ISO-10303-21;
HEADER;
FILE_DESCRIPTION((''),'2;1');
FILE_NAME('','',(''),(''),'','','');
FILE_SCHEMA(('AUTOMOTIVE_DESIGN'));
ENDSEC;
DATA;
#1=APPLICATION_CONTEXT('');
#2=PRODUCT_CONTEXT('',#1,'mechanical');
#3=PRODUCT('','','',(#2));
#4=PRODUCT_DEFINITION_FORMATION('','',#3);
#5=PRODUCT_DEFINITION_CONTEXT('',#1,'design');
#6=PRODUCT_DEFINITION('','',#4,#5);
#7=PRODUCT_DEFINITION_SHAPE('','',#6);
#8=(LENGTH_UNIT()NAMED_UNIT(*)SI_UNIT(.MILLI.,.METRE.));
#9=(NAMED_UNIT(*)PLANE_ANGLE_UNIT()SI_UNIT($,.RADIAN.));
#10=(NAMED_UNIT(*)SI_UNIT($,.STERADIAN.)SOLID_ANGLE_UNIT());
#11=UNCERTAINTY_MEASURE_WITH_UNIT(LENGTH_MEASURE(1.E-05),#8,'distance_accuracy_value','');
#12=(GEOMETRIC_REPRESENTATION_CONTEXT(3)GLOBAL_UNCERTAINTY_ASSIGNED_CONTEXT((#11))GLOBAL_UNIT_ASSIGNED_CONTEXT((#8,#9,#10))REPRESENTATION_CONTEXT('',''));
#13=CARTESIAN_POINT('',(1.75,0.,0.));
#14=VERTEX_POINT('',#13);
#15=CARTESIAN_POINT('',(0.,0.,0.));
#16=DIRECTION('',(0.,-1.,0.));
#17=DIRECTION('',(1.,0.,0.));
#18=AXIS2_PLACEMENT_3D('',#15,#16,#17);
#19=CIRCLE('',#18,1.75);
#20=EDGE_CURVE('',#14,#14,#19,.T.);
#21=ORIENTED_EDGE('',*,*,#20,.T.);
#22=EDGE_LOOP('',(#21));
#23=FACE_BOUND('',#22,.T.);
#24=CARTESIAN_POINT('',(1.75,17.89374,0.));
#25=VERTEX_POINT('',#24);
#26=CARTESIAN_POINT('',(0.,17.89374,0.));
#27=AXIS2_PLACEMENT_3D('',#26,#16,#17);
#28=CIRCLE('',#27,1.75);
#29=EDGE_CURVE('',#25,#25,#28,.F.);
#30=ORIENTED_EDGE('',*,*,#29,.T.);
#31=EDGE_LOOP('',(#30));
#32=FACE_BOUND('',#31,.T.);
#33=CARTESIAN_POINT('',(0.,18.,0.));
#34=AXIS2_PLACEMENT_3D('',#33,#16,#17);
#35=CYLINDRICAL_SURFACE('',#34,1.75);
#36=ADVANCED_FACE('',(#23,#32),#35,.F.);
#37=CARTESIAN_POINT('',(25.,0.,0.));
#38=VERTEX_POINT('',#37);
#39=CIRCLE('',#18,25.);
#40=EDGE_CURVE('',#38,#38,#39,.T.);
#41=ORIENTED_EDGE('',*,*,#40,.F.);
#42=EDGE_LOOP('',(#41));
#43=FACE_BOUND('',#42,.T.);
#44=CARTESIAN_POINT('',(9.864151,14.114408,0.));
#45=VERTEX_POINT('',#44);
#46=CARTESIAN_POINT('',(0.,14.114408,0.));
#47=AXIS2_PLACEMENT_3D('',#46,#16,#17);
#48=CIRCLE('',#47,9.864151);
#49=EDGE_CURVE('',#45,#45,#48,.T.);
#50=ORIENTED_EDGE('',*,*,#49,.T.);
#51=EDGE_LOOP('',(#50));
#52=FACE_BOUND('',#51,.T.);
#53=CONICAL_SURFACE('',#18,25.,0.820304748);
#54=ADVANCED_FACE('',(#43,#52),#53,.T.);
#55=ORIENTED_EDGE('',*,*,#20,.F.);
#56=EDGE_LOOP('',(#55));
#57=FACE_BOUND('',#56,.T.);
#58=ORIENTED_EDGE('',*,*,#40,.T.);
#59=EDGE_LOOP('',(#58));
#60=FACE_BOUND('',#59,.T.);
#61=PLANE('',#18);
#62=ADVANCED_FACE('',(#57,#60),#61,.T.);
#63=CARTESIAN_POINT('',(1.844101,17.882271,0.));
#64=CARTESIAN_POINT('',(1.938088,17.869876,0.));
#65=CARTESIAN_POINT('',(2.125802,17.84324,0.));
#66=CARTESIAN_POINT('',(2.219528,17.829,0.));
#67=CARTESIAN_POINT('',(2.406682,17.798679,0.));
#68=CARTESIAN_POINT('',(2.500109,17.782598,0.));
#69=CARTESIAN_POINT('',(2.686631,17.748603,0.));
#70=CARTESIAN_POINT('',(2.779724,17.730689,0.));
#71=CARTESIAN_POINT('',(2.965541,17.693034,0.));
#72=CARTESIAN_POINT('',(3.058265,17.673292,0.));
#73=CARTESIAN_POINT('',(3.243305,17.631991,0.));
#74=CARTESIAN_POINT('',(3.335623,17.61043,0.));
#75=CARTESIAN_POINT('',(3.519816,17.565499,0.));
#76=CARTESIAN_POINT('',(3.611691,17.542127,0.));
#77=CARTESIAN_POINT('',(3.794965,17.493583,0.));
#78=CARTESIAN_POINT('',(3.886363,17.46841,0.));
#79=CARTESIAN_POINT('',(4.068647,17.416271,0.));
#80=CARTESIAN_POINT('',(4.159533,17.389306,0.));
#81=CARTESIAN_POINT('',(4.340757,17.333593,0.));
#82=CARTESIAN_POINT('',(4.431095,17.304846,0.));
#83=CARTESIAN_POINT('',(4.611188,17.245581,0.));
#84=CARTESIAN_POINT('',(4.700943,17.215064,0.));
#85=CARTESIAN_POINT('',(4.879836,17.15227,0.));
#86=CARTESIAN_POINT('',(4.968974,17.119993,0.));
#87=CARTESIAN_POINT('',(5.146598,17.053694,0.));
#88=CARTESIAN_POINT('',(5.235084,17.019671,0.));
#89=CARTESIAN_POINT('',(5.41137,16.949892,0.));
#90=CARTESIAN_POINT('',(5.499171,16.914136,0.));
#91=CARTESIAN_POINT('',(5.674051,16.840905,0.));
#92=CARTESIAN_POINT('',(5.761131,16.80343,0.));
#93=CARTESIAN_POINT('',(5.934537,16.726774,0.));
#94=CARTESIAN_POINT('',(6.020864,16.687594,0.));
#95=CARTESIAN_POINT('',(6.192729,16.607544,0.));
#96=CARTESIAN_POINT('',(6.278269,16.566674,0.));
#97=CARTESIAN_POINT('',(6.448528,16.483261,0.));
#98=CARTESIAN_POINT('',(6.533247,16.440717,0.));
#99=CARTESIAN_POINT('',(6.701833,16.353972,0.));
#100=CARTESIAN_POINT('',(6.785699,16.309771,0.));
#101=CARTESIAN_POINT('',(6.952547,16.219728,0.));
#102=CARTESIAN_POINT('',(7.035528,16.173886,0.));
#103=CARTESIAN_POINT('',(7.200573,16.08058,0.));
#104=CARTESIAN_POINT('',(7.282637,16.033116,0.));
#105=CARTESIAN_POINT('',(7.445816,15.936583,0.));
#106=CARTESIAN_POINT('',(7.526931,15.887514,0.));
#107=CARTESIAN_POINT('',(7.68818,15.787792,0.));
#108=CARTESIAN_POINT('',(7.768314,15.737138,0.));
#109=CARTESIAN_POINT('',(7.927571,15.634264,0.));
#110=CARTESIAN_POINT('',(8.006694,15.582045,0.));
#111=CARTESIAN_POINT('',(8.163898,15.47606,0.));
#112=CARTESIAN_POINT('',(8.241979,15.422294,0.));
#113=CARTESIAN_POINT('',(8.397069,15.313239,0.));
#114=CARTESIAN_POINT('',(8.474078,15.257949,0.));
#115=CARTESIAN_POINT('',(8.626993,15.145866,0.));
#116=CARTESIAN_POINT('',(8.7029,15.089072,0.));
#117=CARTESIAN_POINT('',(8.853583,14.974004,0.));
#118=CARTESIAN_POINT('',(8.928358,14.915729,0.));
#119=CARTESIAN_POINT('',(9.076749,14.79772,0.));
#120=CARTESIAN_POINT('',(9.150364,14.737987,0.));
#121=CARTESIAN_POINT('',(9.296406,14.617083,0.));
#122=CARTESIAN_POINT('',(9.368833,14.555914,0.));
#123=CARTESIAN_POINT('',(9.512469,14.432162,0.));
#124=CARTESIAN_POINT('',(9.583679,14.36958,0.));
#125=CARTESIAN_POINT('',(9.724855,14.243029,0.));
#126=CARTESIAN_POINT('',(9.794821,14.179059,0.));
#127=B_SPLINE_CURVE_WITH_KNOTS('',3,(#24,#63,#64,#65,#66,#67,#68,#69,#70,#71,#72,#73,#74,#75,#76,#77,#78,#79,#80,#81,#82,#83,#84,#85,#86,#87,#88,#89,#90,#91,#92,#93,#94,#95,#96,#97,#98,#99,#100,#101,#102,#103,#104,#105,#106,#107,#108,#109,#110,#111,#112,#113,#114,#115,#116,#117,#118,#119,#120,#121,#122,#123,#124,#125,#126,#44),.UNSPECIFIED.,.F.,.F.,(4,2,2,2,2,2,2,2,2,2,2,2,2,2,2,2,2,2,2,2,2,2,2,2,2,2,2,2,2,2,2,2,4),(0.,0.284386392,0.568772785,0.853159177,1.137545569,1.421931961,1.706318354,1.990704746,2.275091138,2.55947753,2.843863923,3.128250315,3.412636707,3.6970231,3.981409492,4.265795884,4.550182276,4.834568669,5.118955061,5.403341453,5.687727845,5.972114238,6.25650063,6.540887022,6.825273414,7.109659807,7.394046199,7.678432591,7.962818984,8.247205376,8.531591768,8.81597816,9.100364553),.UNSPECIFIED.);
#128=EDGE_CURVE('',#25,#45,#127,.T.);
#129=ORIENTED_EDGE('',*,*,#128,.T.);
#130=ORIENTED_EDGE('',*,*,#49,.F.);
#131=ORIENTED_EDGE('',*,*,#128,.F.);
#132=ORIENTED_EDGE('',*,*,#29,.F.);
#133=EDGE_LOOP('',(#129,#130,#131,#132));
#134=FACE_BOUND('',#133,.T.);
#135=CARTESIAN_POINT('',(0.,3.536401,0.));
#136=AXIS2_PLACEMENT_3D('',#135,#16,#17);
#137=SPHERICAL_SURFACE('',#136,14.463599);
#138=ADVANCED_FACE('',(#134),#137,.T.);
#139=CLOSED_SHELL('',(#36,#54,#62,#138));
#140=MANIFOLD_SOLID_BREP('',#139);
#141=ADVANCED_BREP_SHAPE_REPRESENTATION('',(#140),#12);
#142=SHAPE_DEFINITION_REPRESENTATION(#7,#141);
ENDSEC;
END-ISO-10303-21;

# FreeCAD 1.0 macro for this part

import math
import FreeCAD as App
import Part
import Sketcher

V = App.Vector
Q = App.Units.Quantity

doc = App.newDocument("Part")
body = doc.addObject("PartDesign::Body", "Body")

# Sketch on XY plane
sketch1 = body.newObject("Sketcher::SketchObject", "Sketch")
sketch1.AttachmentSupport = (doc.getObject("XY_Plane"), [""])
sketch1.MapMode = "FlatFace"
sketch1.addGeometry(Part.LineSegment(V(0, 0, 0), V(25, 0, 0)), False)
sketch1.addGeometry(Part.LineSegment(V(25, 0, 0), V(9.864151, 14.114408, 0)), False)
sketch1.addGeometry(Part.ArcOfCircle(Part.Circle(V(0, 3.536401, 0), V(0, 0, 1), 14.463599), math.radians(47), math.radians(90)), False)
sketch1.addGeometry(Part.LineSegment(V(0, 18, 0), V(0, 0, 0)), False)
sketch1.addConstraint(Sketcher.Constraint("Coincident", 0, 2, 1, 1))
sketch1.addConstraint(Sketcher.Constraint("Tangent", 1, 2, 2, 1))
sketch1.addConstraint(Sketcher.Constraint("Coincident", 2, 2, 3, 1))
sketch1.addConstraint(Sketcher.Constraint("Coincident", 3, 2, 0, 1))
sketch1.addConstraint(Sketcher.Constraint("Horizontal", 0))
sketch1.addConstraint(Sketcher.Constraint("Vertical", 3))
sketch1.addConstraint(Sketcher.Constraint("Coincident", 3, 2, -1, 1))
sketch1.addConstraint(Sketcher.Constraint("PointOnObject", 2, 3, -2))
sketch1.addConstraint(Sketcher.Constraint("DistanceX", 0, 1, 0, 2, Q("25 mm")))
sketch1.addConstraint(Sketcher.Constraint("DistanceY", 3, 2, 3, 1, Q("18 mm")))
sketch1.addConstraint(Sketcher.Constraint("Angle", 1, Q("137 deg")))
revolution = body.newObject("PartDesign::Revolution", "Revolution")
revolution.Profile = sketch1
revolution.ReferenceAxis = (sketch1, ["V_Axis"])
revolution.Angle = 360

# Sketch on XZ plane
sketch2 = body.newObject("Sketcher::SketchObject", "Sketch001")
sketch2.AttachmentSupport = (doc.getObject("XZ_Plane"), [""])
sketch2.MapMode = "FlatFace"
sketch2.addGeometry(Part.Circle(V(0, 0, 0), V(0, 0, 1), 1.75), False)
sketch2.addConstraint(Sketcher.Constraint("Coincident", 0, 3, -1, 1))
sketch2.addConstraint(Sketcher.Constraint("Diameter", 0, Q("3.5 mm")))
pocket1 = body.newObject("PartDesign::Pocket", "Pocket")
pocket1.Profile = sketch2
pocket1.Type = "ThroughAll"

doc.recompute()
